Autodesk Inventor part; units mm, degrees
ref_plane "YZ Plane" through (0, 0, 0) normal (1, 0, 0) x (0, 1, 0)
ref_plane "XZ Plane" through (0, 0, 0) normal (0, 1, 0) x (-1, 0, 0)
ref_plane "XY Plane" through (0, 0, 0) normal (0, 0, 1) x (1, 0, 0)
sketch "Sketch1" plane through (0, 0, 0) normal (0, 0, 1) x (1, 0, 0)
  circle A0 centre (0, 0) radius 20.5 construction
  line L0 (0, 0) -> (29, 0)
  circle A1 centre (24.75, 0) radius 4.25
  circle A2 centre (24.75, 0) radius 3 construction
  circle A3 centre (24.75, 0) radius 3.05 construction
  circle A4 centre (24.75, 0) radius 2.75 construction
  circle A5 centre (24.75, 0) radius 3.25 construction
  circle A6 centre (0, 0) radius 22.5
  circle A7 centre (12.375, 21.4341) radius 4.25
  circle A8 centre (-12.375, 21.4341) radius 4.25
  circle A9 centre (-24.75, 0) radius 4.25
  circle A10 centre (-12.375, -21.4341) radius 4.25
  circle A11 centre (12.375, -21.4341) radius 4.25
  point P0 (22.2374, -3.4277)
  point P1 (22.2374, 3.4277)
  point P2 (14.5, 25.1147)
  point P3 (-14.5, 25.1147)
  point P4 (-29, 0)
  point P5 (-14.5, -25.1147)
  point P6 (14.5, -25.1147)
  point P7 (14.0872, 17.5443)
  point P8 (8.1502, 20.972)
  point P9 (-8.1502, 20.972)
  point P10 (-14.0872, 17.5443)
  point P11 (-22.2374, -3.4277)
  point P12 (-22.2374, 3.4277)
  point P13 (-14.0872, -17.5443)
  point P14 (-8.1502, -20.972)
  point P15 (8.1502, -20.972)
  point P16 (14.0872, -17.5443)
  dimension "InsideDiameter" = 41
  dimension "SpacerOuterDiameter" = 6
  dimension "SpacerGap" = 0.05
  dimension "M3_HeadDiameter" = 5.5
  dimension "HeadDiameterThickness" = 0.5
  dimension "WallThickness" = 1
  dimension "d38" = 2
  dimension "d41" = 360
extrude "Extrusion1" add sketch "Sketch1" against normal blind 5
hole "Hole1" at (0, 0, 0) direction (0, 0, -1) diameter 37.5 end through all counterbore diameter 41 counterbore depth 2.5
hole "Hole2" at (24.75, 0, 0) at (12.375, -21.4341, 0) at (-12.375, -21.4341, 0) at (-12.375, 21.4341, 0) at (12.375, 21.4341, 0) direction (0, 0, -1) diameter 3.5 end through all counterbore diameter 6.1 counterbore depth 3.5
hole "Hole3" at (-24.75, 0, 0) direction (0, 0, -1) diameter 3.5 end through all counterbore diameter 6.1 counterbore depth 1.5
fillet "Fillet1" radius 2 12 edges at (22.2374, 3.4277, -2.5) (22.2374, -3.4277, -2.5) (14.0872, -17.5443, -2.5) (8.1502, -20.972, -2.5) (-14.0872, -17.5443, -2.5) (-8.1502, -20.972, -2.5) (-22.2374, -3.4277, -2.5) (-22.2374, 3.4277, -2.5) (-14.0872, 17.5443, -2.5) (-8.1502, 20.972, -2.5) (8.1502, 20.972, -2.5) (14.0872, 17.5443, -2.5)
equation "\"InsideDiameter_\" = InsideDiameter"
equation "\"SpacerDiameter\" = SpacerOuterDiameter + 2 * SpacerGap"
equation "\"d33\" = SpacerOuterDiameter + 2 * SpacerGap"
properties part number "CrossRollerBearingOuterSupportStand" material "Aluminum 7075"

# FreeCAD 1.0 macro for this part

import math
import FreeCAD as App
import Part
import Sketcher

V = App.Vector
Q = App.Units.Quantity


def edges_at(feature, points):
    """Names of the edges that pass closest to the given points."""
    edges = feature.Shape.Edges
    near = lambda p: min(range(len(edges)), key=lambda i: edges[i].distToShape(Part.Vertex(*p))[0])
    return sorted({f"Edge{near(p) + 1}" for p in points})

doc = App.newDocument("Part")
params = doc.addObject("Spreadsheet::Sheet", "Params")
for row, (alias, value) in enumerate([
    ("sketch1_radius", "22.5 mm"),
    ("sketch1_radius2", "4.25 mm"),
    ("pad1_length", "5 mm"),
    ("sketch2_diameter", "37.5 mm"),
    ("hole_diameter", "37.5 mm"),
    ("hole_cbore_diameter", "41 mm"),
    ("hole_cbore_depth", "2.5 mm"),
    ("sketch3_diameter", "3.5 mm"),
    ("hole2_diameter", "3.5 mm"),
    ("hole2_cbore_diameter", "6.1 mm"),
    ("hole2_cbore_depth", "3.5 mm"),
    ("sketch4_diameter", "3.5 mm"),
    ("hole3_diameter", "3.5 mm"),
    ("hole3_cbore_diameter", "6.1 mm"),
    ("hole3_cbore_depth", "1.5 mm"),
    ("fillet_radius", "2 mm"),
], start=1):
    params.set(f"A{row}", alias)
    params.set(f"B{row}", "=" + value)
    params.setAlias(f"B{row}", alias)

body = doc.addObject("PartDesign::Body", "Body")

# Sketch on XY plane
sketch1 = body.newObject("Sketcher::SketchObject", "Sketch")
sketch1.AttachmentSupport = (doc.getObject("XY_Plane"), [""])
sketch1.MapMode = "FlatFace"
sketch1.addGeometry([
    Part.ArcOfCircle(Part.Circle(V(0, 0, 0), V(0, 0, 1), 22.5), math.radians(9), math.radians(51)),  # 0
    Part.ArcOfCircle(Part.Circle(V(12.4, 21.4, 0), V(0, 0, 1), 4.2), math.radians(-66), math.radians(186)),  # 1
    Part.ArcOfCircle(Part.Circle(V(0, 0, 0), V(0, 0, 1), 22.5), math.radians(69), math.radians(111)),  # 2
    Part.ArcOfCircle(Part.Circle(V(-12.4, 21.4, 0), V(0, 0, 1), 4.2), math.radians(-6), math.radians(246)),  # 3
    Part.ArcOfCircle(Part.Circle(V(0, 0, 0), V(0, 0, 1), 22.5), math.radians(129), math.radians(171)),  # 4
    Part.ArcOfCircle(Part.Circle(V(-24.8, 0, 0), V(0, 0, 1), 4.2), math.radians(54), math.radians(306)),  # 5
    Part.ArcOfCircle(Part.Circle(V(0, 0, 0), V(0, 0, 1), 22.5), math.radians(-171), math.radians(-129)),  # 6
    Part.ArcOfCircle(Part.Circle(V(-12.4, -21.4, 0), V(0, 0, 1), 4.2), math.radians(114), math.radians(366)),  # 7
    Part.ArcOfCircle(Part.Circle(V(0, 0, 0), V(0, 0, 1), 22.5), math.radians(-111), math.radians(-69)),  # 8
    Part.ArcOfCircle(Part.Circle(V(12.4, -21.4, 0), V(0, 0, 1), 4.2), math.radians(174), math.radians(426)),  # 9
    Part.ArcOfCircle(Part.Circle(V(0, 0, 0), V(0, 0, 1), 22.5), math.radians(-51), math.radians(-9)),  # 10
    Part.ArcOfCircle(Part.Circle(V(24.8, 0, 0), V(0, 0, 1), 4.2), math.radians(-126), math.radians(126)),  # 11
], False)
sketch1.addConstraint([
    Sketcher.Constraint("Coincident", 0, 2, 1, 1),
    Sketcher.Constraint("Coincident", 1, 2, 2, 1),
    Sketcher.Constraint("Coincident", 2, 2, 3, 1),
    Sketcher.Constraint("Coincident", 3, 2, 4, 1),
    Sketcher.Constraint("Coincident", 4, 2, 5, 1),
    Sketcher.Constraint("Coincident", 5, 2, 6, 1),
    Sketcher.Constraint("Coincident", 6, 2, 7, 1),
    Sketcher.Constraint("Coincident", 7, 2, 8, 1),
    Sketcher.Constraint("Coincident", 8, 2, 9, 1),
    Sketcher.Constraint("Coincident", 9, 2, 10, 1),
    Sketcher.Constraint("Coincident", 10, 2, 11, 1),
    Sketcher.Constraint("Coincident", 11, 2, 0, 1),
    Sketcher.Constraint("Coincident", 0, 3, -1, 1),
    Sketcher.Constraint("Coincident", 2, 3, -1, 1),
    Sketcher.Constraint("Coincident", 4, 3, -1, 1),
    Sketcher.Constraint("Coincident", 6, 3, -1, 1),
    Sketcher.Constraint("Coincident", 8, 3, -1, 1),
    Sketcher.Constraint("Coincident", 10, 3, -1, 1),
    Sketcher.Constraint("Equal", 0, 2),
    Sketcher.Constraint("Equal", 1, 3),
    Sketcher.Constraint("Equal", 2, 4),
    Sketcher.Constraint("Equal", 3, 5),
    Sketcher.Constraint("Equal", 4, 6),
    Sketcher.Constraint("Equal", 5, 7),
    Sketcher.Constraint("Equal", 6, 8),
    Sketcher.Constraint("Equal", 7, 9),
    Sketcher.Constraint("Equal", 8, 10),
    Sketcher.Constraint("Equal", 9, 11),
    Sketcher.Constraint("Symmetric", 1, 3, 7, 3, -1, 1),
    Sketcher.Constraint("Symmetric", 3, 3, 9, 3, -1, 1),
    Sketcher.Constraint("Symmetric", 5, 3, 11, 3, -1, 1),
    Sketcher.Constraint("Symmetric", 1, 3, 3, 3, -2),
    Sketcher.Constraint("PointOnObject", 5, 3, -1),
    Sketcher.Constraint("Radius", 0, Q("22.5 mm")),
    Sketcher.Constraint("Radius", 1, Q("4.25 mm")),
    Sketcher.Constraint("DistanceX", 5, 3, -1, 1, Q("24.75 mm")),
    Sketcher.Constraint("DistanceX", 3, 3, 1, 3, Q("24.75 mm")),
    Sketcher.Constraint("DistanceY", -1, 1, 1, 3, Q("21.434 mm")),
])
sketch1.setExpression("Constraints[33]", "Params.sketch1_radius")
sketch1.setExpression("Constraints[34]", "Params.sketch1_radius2")
pad1 = body.newObject("PartDesign::Pad", "Pad")
pad1.Profile = sketch1
pad1.setExpression("Length", "Params.pad1_length")
pad1.Reversed = True

# Sketch on XY plane
sketch2 = body.newObject("Sketcher::SketchObject", "Sketch001")
sketch2.AttachmentSupport = (doc.getObject("XY_Plane"), [""])
sketch2.MapMode = "FlatFace"
sketch2.addGeometry(Part.Circle(V(0, 0, 0), V(0, 0, 1), 19), False)
sketch2.addConstraint([
    Sketcher.Constraint("Coincident", 0, 3, -1, 1),
    Sketcher.Constraint("Diameter", 0, Q("37.5 mm")),
])
sketch2.setExpression("Constraints[1]", "Params.sketch2_diameter")
doc.recompute()
hole = body.newObject("PartDesign::Hole", "Hole")
hole.Profile = sketch2
hole.ThreadType = "None"
hole.setExpression("Diameter", "Params.hole_diameter")
hole.DepthType = "ThroughAll"
hole.HoleCutType = "Counterbore"
hole.setExpression("HoleCutDiameter", "Params.hole_cbore_diameter")
hole.setExpression("HoleCutDepth", "Params.hole_cbore_depth")

# Sketch on XY plane
sketch3 = body.newObject("Sketcher::SketchObject", "Sketch002")
sketch3.AttachmentSupport = (doc.getObject("XY_Plane"), [""])
sketch3.MapMode = "FlatFace"
sketch3.addGeometry([
    Part.Circle(V(24.8, 0, 0), V(0, 0, 1), 1.8),  # 0
    Part.Circle(V(12.4, -21.4, 0), V(0, 0, 1), 1.8),  # 1
    Part.Circle(V(-12.4, -21.4, 0), V(0, 0, 1), 1.8),  # 2
    Part.Circle(V(-12.4, 21.4, 0), V(0, 0, 1), 1.8),  # 3
    Part.Circle(V(12.4, 21.4, 0), V(0, 0, 1), 1.8),  # 4
], False)
sketch3.addConstraint([
    Sketcher.Constraint("Equal", 0, 1),
    Sketcher.Constraint("Equal", 1, 2),
    Sketcher.Constraint("Equal", 2, 3),
    Sketcher.Constraint("Equal", 3, 4),
    Sketcher.Constraint("Symmetric", 1, 3, 3, 3, -1, 1),
    Sketcher.Constraint("Symmetric", 2, 3, 4, 3, -1, 1),
    Sketcher.Constraint("Symmetric", 1, 3, 2, 3, -2),
    Sketcher.Constraint("PointOnObject", 0, 3, -1),
    Sketcher.Constraint("Diameter", 0, Q("3.5 mm")),
    Sketcher.Constraint("DistanceX", -1, 1, 0, 3, Q("24.75 mm")),
    Sketcher.Constraint("DistanceX", 2, 3, 1, 3, Q("24.75 mm")),
    Sketcher.Constraint("DistanceY", 1, 3, -1, 1, Q("21.434 mm")),
])
sketch3.setExpression("Constraints[8]", "Params.sketch3_diameter")
doc.recompute()
hole2 = body.newObject("PartDesign::Hole", "Hole001")
hole2.Profile = sketch3
hole2.ThreadType = "None"
hole2.setExpression("Diameter", "Params.hole2_diameter")
hole2.DepthType = "ThroughAll"
hole2.HoleCutType = "Counterbore"
hole2.setExpression("HoleCutDiameter", "Params.hole2_cbore_diameter")
hole2.setExpression("HoleCutDepth", "Params.hole2_cbore_depth")

# Sketch on XY plane
sketch4 = body.newObject("Sketcher::SketchObject", "Sketch003")
sketch4.AttachmentSupport = (doc.getObject("XY_Plane"), [""])
sketch4.MapMode = "FlatFace"
sketch4.addGeometry(Part.Circle(V(-24.8, 0, 0), V(0, 0, 1), 1.8), False)
sketch4.addConstraint([
    Sketcher.Constraint("PointOnObject", 0, 3, -1),
    Sketcher.Constraint("Diameter", 0, Q("3.5 mm")),
    Sketcher.Constraint("DistanceX", 0, 3, -1, 1, Q("24.75 mm")),
])
sketch4.setExpression("Constraints[1]", "Params.sketch4_diameter")
doc.recompute()
hole3 = body.newObject("PartDesign::Hole", "Hole002")
hole3.Profile = sketch4
hole3.ThreadType = "None"
hole3.setExpression("Diameter", "Params.hole3_diameter")
hole3.DepthType = "ThroughAll"
hole3.HoleCutType = "Counterbore"
hole3.setExpression("HoleCutDiameter", "Params.hole3_cbore_diameter")
hole3.setExpression("HoleCutDepth", "Params.hole3_cbore_depth")
doc.recompute()

fillet = body.newObject("PartDesign::Fillet", "Fillet")
fillet.Base = (hole3, edges_at(hole3, [
    (22.237, 3.428, -2.5),
    (22.237, -3.428, -2.5),
    (14.087, -17.544, -2.5),
    (8.15, -20.972, -2.5),
    (-14.087, -17.544, -2.5),
    (-8.15, -20.972, -2.5),
    (-22.237, -3.428, -2.5),
    (-22.237, 3.428, -2.5),
    (-14.087, 17.544, -2.5),
    (-8.15, 20.972, -2.5),
    (8.15, 20.972, -2.5),
    (14.087, 17.544, -2.5),
]))
fillet.setExpression("Radius", "Params.fillet_radius")

doc.recompute()
